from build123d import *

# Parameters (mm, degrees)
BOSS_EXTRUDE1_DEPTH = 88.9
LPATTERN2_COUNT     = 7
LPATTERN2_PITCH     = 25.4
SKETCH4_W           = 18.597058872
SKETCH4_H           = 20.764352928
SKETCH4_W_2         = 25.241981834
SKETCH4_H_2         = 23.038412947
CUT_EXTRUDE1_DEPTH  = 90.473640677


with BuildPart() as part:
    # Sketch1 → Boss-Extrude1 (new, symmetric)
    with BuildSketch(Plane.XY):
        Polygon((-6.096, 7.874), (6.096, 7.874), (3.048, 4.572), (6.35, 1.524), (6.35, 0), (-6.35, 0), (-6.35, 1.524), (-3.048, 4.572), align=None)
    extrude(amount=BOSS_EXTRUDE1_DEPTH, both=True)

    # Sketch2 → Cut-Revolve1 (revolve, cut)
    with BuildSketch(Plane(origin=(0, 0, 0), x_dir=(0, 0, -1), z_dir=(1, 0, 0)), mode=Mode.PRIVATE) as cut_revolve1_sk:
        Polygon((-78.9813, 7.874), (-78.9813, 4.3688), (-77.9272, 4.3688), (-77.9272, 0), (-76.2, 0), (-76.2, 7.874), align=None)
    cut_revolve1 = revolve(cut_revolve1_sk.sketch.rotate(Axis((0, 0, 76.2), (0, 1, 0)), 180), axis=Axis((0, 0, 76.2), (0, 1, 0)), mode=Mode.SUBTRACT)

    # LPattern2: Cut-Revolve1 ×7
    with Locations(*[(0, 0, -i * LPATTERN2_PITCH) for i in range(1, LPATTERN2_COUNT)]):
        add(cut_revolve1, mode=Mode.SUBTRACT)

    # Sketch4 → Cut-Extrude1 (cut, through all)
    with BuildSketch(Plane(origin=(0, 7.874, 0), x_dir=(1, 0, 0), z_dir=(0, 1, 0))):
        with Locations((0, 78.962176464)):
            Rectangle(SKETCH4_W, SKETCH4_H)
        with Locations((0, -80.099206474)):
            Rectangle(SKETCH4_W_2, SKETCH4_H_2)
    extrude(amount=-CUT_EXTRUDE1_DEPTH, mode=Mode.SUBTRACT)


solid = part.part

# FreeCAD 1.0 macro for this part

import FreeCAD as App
import Part
import Sketcher
from FreeCAD import Vector
Q = App.Units.Quantity

doc = App.newDocument("Part")
body = doc.addObject("PartDesign::Body", "Body")

# Sketch on XY plane
sketch1 = doc.addObject("Sketcher::SketchObject", "Sketch")
body.addObject(sketch1)
sketch1.AttachmentSupport = (doc.XY_Plane, [""])
sketch1.MapMode = "FlatFace"
sketch1.addGeometry(Part.LineSegment(Vector(6.1, 7.9, 0), Vector(-6.1, 7.9, 0)), False)
sketch1.addGeometry(Part.LineSegment(Vector(-6.1, 7.9, 0), Vector(-3, 4.6, 0)), False)
sketch1.addGeometry(Part.LineSegment(Vector(-3, 4.6, 0), Vector(-6.3, 1.5, 0)), False)
sketch1.addGeometry(Part.LineSegment(Vector(-6.3, 1.5, 0), Vector(-6.3, 0, 0)), False)
sketch1.addGeometry(Part.LineSegment(Vector(-6.3, 0, 0), Vector(6.3, 0, 0)), False)
sketch1.addGeometry(Part.LineSegment(Vector(6.3, 0, 0), Vector(6.3, 1.5, 0)), False)
sketch1.addGeometry(Part.LineSegment(Vector(6.3, 1.5, 0), Vector(3, 4.6, 0)), False)
sketch1.addGeometry(Part.LineSegment(Vector(3, 4.6, 0), Vector(6.1, 7.9, 0)), False)
sketch1.addConstraint(Sketcher.Constraint("Coincident", 0, 2, 1, 1))
sketch1.addConstraint(Sketcher.Constraint("Coincident", 1, 2, 2, 1))
sketch1.addConstraint(Sketcher.Constraint("Coincident", 2, 2, 3, 1))
sketch1.addConstraint(Sketcher.Constraint("Coincident", 3, 2, 4, 1))
sketch1.addConstraint(Sketcher.Constraint("Coincident", 4, 2, 5, 1))
sketch1.addConstraint(Sketcher.Constraint("Coincident", 5, 2, 6, 1))
sketch1.addConstraint(Sketcher.Constraint("Coincident", 6, 2, 7, 1))
sketch1.addConstraint(Sketcher.Constraint("Coincident", 7, 2, 0, 1))
sketch1.addConstraint(Sketcher.Constraint("Horizontal", 0))
sketch1.addConstraint(Sketcher.Constraint("Vertical", 3))
sketch1.addConstraint(Sketcher.Constraint("Horizontal", 4))
sketch1.addConstraint(Sketcher.Constraint("Vertical", 5))
sketch1.addConstraint(Sketcher.Constraint("Symmetric", 3, 2, 4, 2, -1, 1))
sketch1.addConstraint(Sketcher.Constraint("Symmetric", 1, 2, 6, 2, -2))
sketch1.addConstraint(Sketcher.Constraint("Perpendicular", 1, 2))
sketch1.addConstraint(Sketcher.Constraint("Perpendicular", 6, 7))
sketch1.addConstraint(Sketcher.Constraint("Horizontal", 2, 2, 5, 2))
sketch1.addConstraint(Sketcher.Constraint("Equal", 1, 2))
sketch1.addConstraint(Sketcher.Constraint("DistanceX", 4, 1, 4, 2, Q("0.5 in")))
sketch1.addConstraint(Sketcher.Constraint("DistanceX", 0, 2, 0, 1, Q("0.48 in")))
sketch1.addConstraint(Sketcher.Constraint("DistanceY", 3, 2, 3, 1, Q("0.06 in")))
sketch1.addConstraint(Sketcher.Constraint("DistanceY", -1, 1, 0, 2, Q("0.31 in")))
pad1 = doc.addObject("PartDesign::Pad", "Pad")
body.addObject(pad1)
pad1.Profile = sketch1
pad1.Length = Q("7 in")
pad1.Midplane = True

# Sketch on YZ plane
sketch2 = doc.addObject("Sketcher::SketchObject", "Sketch001")
body.addObject(sketch2)
sketch2.AttachmentSupport = (doc.YZ_Plane, [""])
sketch2.MapMode = "FlatFace"
sketch2.addGeometry(Part.LineSegment(Vector(7.9, 79, 0), Vector(4.4, 79, 0)), False)
sketch2.addGeometry(Part.LineSegment(Vector(4.4, 79, 0), Vector(4.4, 77.9, 0)), False)
sketch2.addGeometry(Part.LineSegment(Vector(4.4, 77.9, 0), Vector(0, 77.9, 0)), False)
sketch2.addGeometry(Part.LineSegment(Vector(0, 77.9, 0), Vector(0, 76.2, 0)), False)
sketch2.addGeometry(Part.LineSegment(Vector(0, 76.2, 0), Vector(7.9, 76.2, 0)), False)
sketch2.addGeometry(Part.LineSegment(Vector(7.9, 76.2, 0), Vector(7.9, 79, 0)), False)
sketch2.addGeometry(Part.LineSegment(Vector(0, 76.2, 0), Vector(7.9, 76.2, 0)), True)  # axis
sketch2.addConstraint(Sketcher.Constraint("Coincident", 0, 2, 1, 1))
sketch2.addConstraint(Sketcher.Constraint("Coincident", 1, 2, 2, 1))
sketch2.addConstraint(Sketcher.Constraint("Coincident", 2, 2, 3, 1))
sketch2.addConstraint(Sketcher.Constraint("Coincident", 3, 2, 4, 1))
sketch2.addConstraint(Sketcher.Constraint("Coincident", 4, 2, 5, 1))
sketch2.addConstraint(Sketcher.Constraint("Coincident", 5, 2, 0, 1))
sketch2.addConstraint(Sketcher.Constraint("Horizontal", 0))
sketch2.addConstraint(Sketcher.Constraint("Vertical", 1))
sketch2.addConstraint(Sketcher.Constraint("Horizontal", 2))
sketch2.addConstraint(Sketcher.Constraint("Vertical", 3))
sketch2.addConstraint(Sketcher.Constraint("Horizontal", 4))
sketch2.addConstraint(Sketcher.Constraint("Vertical", 5))
sketch2.addConstraint(Sketcher.Constraint("Horizontal", 6))
sketch2.addConstraint(Sketcher.Constraint("Coincident", 6, 1, 3, 2))
sketch2.addConstraint(Sketcher.Constraint("PointOnObject", 2, 2, -2))
sketch2.addConstraint(Sketcher.Constraint("Vertical", 5, 2, 6, 2))
sketch2.addConstraint(Sketcher.Constraint("DistanceY", -1, 1, 3, 2, Q("3 in")))
sketch2.addConstraint(Sketcher.Constraint("DistanceX", 4, 1, 4, 2, Q("0.31 in")))
sketch2.addConstraint(Sketcher.Constraint("DistanceX", 0, 2, 0, 1, Q("0.138 in")))
sketch2.addConstraint(Sketcher.Constraint("DistanceY", 3, 2, 3, 1, Q("0.068 in")))
sketch2.addConstraint(Sketcher.Constraint("DistanceY", 1, 2, 1, 1, Q("0.0415 in")))
groove = doc.addObject("PartDesign::Groove", "Groove")
body.addObject(groove)
groove.Profile = sketch2
groove.ReferenceAxis = (sketch2, ["Axis0"])
groove.Angle = 360
doc.recompute()

linearpattern = doc.addObject("PartDesign::LinearPattern", "LinearPattern")
body.addObject(linearpattern)
linearpattern.Originals = [groove]
linearpattern.Direction = (doc.Z_Axis, [""])
linearpattern.Mode = "offset"
linearpattern.Offset = Q("1 in")
linearpattern.Occurrences = 7
linearpattern.Reversed = True
body.Tip = linearpattern

# Sketch on XZ plane
sketch3 = doc.addObject("Sketcher::SketchObject", "Sketch002")
body.addObject(sketch3)
sketch3.AttachmentSupport = (doc.XZ_Plane, [""])
sketch3.MapMode = "FlatFace"
sketch3.AttachmentOffset = App.Placement(Vector(0, 0, -0.31 * 25.4), App.Rotation())
sketch3.addGeometry(Part.LineSegment(Vector(-9, -89, 0), Vector(-9, -69, 0)), False)
sketch3.addGeometry(Part.LineSegment(Vector(-9, -69, 0), Vector(9, -69, 0)), False)
sketch3.addGeometry(Part.LineSegment(Vector(9, -69, 0), Vector(9, -89, 0)), False)
sketch3.addGeometry(Part.LineSegment(Vector(9, -89, 0), Vector(-9, -89, 0)), False)
sketch3.addGeometry(Part.LineSegment(Vector(-13, 69, 0), Vector(-13, 92, 0)), False)
sketch3.addGeometry(Part.LineSegment(Vector(-13, 92, 0), Vector(13, 92, 0)), False)
sketch3.addGeometry(Part.LineSegment(Vector(13, 92, 0), Vector(13, 69, 0)), False)
sketch3.addGeometry(Part.LineSegment(Vector(13, 69, 0), Vector(-13, 69, 0)), False)
sketch3.addConstraint(Sketcher.Constraint("Coincident", 0, 2, 1, 1))
sketch3.addConstraint(Sketcher.Constraint("Coincident", 1, 2, 2, 1))
sketch3.addConstraint(Sketcher.Constraint("Coincident", 2, 2, 3, 1))
sketch3.addConstraint(Sketcher.Constraint("Coincident", 3, 2, 0, 1))
sketch3.addConstraint(Sketcher.Constraint("Coincident", 4, 2, 5, 1))
sketch3.addConstraint(Sketcher.Constraint("Coincident", 5, 2, 6, 1))
sketch3.addConstraint(Sketcher.Constraint("Coincident", 6, 2, 7, 1))
sketch3.addConstraint(Sketcher.Constraint("Coincident", 7, 2, 4, 1))
sketch3.addConstraint(Sketcher.Constraint("Vertical", 0))
sketch3.addConstraint(Sketcher.Constraint("Horizontal", 1))
sketch3.addConstraint(Sketcher.Constraint("Vertical", 2))
sketch3.addConstraint(Sketcher.Constraint("Horizontal", 3))
sketch3.addConstraint(Sketcher.Constraint("Vertical", 4))
sketch3.addConstraint(Sketcher.Constraint("Horizontal", 5))
sketch3.addConstraint(Sketcher.Constraint("Vertical", 6))
sketch3.addConstraint(Sketcher.Constraint("Horizontal", 7))
sketch3.addConstraint(Sketcher.Constraint("DistanceY", 0, 2, -1, 1, Q("2.7 in")))
sketch3.addConstraint(Sketcher.Constraint("DistanceY", -1, 1, 6, 2, Q("2.7 in")))
sketch3.addConstraint(Sketcher.Constraint("DistanceX", 1, 1, 1, 2, 18.597059))
sketch3.addConstraint(Sketcher.Constraint("DistanceX", 5, 1, 5, 2, 25.241982))
sketch3.addConstraint(Sketcher.Constraint("DistanceY", 0, 1, 0, 2, 20.764353))
sketch3.addConstraint(Sketcher.Constraint("DistanceY", 4, 1, 4, 2, 23.038413))
sketch3.addConstraint(Sketcher.Constraint("DistanceX", 0, 2, -1, 1, 9.298529))
sketch3.addConstraint(Sketcher.Constraint("DistanceX", 4, 2, -1, 1, 12.620991))
pocket1 = doc.addObject("PartDesign::Pocket", "Pocket")
body.addObject(pocket1)
pocket1.Profile = sketch3
pocket1.Type = "ThroughAll"
pocket1.Reversed = True

doc.recompute()
